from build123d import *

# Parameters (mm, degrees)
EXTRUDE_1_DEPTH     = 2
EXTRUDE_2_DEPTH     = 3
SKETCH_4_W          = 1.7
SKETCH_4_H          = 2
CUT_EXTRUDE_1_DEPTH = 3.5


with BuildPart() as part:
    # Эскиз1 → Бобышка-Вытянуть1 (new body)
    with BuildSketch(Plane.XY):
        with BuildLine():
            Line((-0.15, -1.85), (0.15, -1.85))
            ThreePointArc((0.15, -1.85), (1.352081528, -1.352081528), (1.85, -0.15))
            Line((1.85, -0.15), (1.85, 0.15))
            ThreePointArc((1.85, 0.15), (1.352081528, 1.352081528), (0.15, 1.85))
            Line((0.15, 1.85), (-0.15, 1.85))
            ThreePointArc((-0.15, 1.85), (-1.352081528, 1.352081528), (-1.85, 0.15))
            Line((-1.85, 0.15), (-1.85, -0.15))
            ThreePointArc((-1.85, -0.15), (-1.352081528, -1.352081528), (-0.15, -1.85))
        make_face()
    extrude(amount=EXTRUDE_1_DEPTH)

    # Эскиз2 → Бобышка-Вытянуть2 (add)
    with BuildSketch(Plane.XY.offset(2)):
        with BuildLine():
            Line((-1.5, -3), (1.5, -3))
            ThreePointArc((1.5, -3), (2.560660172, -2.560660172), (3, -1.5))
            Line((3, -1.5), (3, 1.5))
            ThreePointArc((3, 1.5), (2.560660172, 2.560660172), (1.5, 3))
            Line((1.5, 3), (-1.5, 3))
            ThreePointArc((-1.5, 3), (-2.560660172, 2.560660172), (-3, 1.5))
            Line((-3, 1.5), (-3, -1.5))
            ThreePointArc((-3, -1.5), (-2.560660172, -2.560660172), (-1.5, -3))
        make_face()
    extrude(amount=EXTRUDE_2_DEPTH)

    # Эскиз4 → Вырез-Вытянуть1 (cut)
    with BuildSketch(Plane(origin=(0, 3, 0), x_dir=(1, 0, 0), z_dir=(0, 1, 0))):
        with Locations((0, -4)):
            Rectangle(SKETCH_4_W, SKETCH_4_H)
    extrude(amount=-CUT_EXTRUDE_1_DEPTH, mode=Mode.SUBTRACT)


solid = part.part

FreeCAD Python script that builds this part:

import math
import FreeCAD as App
import Part
import Sketcher


def add_polygon(sketch, points):
    """Adds a closed chain of lines whose ends are joined by coincident constraints."""
    first, n = sketch.GeometryCount, len(points)
    for a, b in zip(points, points[1:] + points[:1]):
        sketch.addGeometry(Part.LineSegment(App.Vector(*a, 0), App.Vector(*b, 0)), False)
    for i in range(n):
        sketch.addConstraint(Sketcher.Constraint("Coincident", first + i, 2, first + (i + 1) % n, 1))

doc = App.newDocument("Part")
body = doc.addObject("PartDesign::Body", "Body")

# Sketch on XY plane
sketch1 = body.newObject("Sketcher::SketchObject", "Sketch")
sketch1.AttachmentSupport = (doc.getObject("XY_Plane"), [""])
sketch1.MapMode = "FlatFace"
sketch1.addGeometry([
    Part.LineSegment(App.Vector(-0.15, -1.85, 0), App.Vector(0.15, -1.85, 0)),  # 0
    Part.ArcOfCircle(Part.Circle(App.Vector(0.15, -0.15, 0), App.Vector(0, 0, 1), 1.7), math.radians(-90), math.radians(0)),  # 1
    Part.LineSegment(App.Vector(1.85, -0.15, 0), App.Vector(1.85, 0.15, 0)),  # 2
    Part.ArcOfCircle(Part.Circle(App.Vector(0.15, 0.15, 0), App.Vector(0, 0, 1), 1.7), math.radians(0), math.radians(90)),  # 3
    Part.LineSegment(App.Vector(0.15, 1.85, 0), App.Vector(-0.15, 1.85, 0)),  # 4
    Part.ArcOfCircle(Part.Circle(App.Vector(-0.15, 0.15, 0), App.Vector(0, 0, 1), 1.7), math.radians(90), math.radians(180)),  # 5
    Part.LineSegment(App.Vector(-1.85, 0.15, 0), App.Vector(-1.85, -0.15, 0)),  # 6
    Part.ArcOfCircle(Part.Circle(App.Vector(-0.15, -0.15, 0), App.Vector(0, 0, 1), 1.7), math.radians(180), math.radians(270)),  # 7
], False)
sketch1.addConstraint([
    Sketcher.Constraint("Tangent", 0, 2, 1, 1),
    Sketcher.Constraint("Tangent", 1, 2, 2, 1),
    Sketcher.Constraint("Tangent", 2, 2, 3, 1),
    Sketcher.Constraint("Tangent", 3, 2, 4, 1),
    Sketcher.Constraint("Tangent", 4, 2, 5, 1),
    Sketcher.Constraint("Tangent", 5, 2, 6, 1),
    Sketcher.Constraint("Tangent", 6, 2, 7, 1),
    Sketcher.Constraint("Tangent", 7, 2, 0, 1),
    Sketcher.Constraint("Horizontal", 0),
    Sketcher.Constraint("Vertical", 2),
    Sketcher.Constraint("Horizontal", 4),
    Sketcher.Constraint("Vertical", 6),
    Sketcher.Constraint("Equal", 1, 3),
    Sketcher.Constraint("Equal", 3, 5),
    Sketcher.Constraint("Equal", 5, 7),
    Sketcher.Constraint("Symmetric", 1, 3, 5, 3, -1, 1),
    Sketcher.Constraint("Equal", 4, 2),
    Sketcher.Constraint("Radius", 1, 1.7),
    Sketcher.Constraint("DistanceX", 0, 1, 0, 2, 0.3),
])
pad1 = body.newObject("PartDesign::Pad", "Pad")
pad1.Profile = sketch1
pad1.Length = 2

# Sketch on XY plane
sketch2 = body.newObject("Sketcher::SketchObject", "Sketch001")
sketch2.AttachmentSupport = (doc.getObject("XY_Plane"), [""])
sketch2.MapMode = "FlatFace"
sketch2.AttachmentOffset = App.Placement(App.Vector(0, 0, 2), App.Rotation())
sketch2.addGeometry([
    Part.LineSegment(App.Vector(-1.5, -3, 0), App.Vector(1.5, -3, 0)),  # 0
    Part.ArcOfCircle(Part.Circle(App.Vector(1.5, -1.5, 0), App.Vector(0, 0, 1), 1.5), math.radians(-90), math.radians(0)),  # 1
    Part.LineSegment(App.Vector(3, -1.5, 0), App.Vector(3, 1.5, 0)),  # 2
    Part.ArcOfCircle(Part.Circle(App.Vector(1.5, 1.5, 0), App.Vector(0, 0, 1), 1.5), math.radians(0), math.radians(90)),  # 3
    Part.LineSegment(App.Vector(1.5, 3, 0), App.Vector(-1.5, 3, 0)),  # 4
    Part.ArcOfCircle(Part.Circle(App.Vector(-1.5, 1.5, 0), App.Vector(0, 0, 1), 1.5), math.radians(90), math.radians(180)),  # 5
    Part.LineSegment(App.Vector(-3, 1.5, 0), App.Vector(-3, -1.5, 0)),  # 6
    Part.ArcOfCircle(Part.Circle(App.Vector(-1.5, -1.5, 0), App.Vector(0, 0, 1), 1.5), math.radians(180), math.radians(270)),  # 7
], False)
sketch2.addConstraint([
    Sketcher.Constraint("Tangent", 0, 2, 1, 1),
    Sketcher.Constraint("Tangent", 1, 2, 2, 1),
    Sketcher.Constraint("Tangent", 2, 2, 3, 1),
    Sketcher.Constraint("Tangent", 3, 2, 4, 1),
    Sketcher.Constraint("Tangent", 4, 2, 5, 1),
    Sketcher.Constraint("Tangent", 5, 2, 6, 1),
    Sketcher.Constraint("Tangent", 6, 2, 7, 1),
    Sketcher.Constraint("Tangent", 7, 2, 0, 1),
    Sketcher.Constraint("Horizontal", 0),
    Sketcher.Constraint("Vertical", 2),
    Sketcher.Constraint("Horizontal", 4),
    Sketcher.Constraint("Vertical", 6),
    Sketcher.Constraint("Equal", 1, 3),
    Sketcher.Constraint("Equal", 3, 5),
    Sketcher.Constraint("Equal", 5, 7),
    Sketcher.Constraint("Symmetric", 1, 3, 5, 3, -1, 1),
    Sketcher.Constraint("Equal", 4, 2),
    Sketcher.Constraint("Radius", 1, 1.5),
    Sketcher.Constraint("DistanceX", 0, 1, 0, 2, 3.0),
])
pad2 = body.newObject("PartDesign::Pad", "Pad001")
pad2.Profile = sketch2
pad2.Length = 3

# Sketch on XZ plane
sketch3 = body.newObject("Sketcher::SketchObject", "Sketch002")
sketch3.AttachmentSupport = (doc.getObject("XZ_Plane"), [""])
sketch3.MapMode = "FlatFace"
sketch3.AttachmentOffset = App.Placement(App.Vector(0, 0, -3), App.Rotation())
add_polygon(sketch3, [(-0.8, 3), (-0.8, 5), (0.8, 5), (0.8, 3)])  # lines 0-3
sketch3.addConstraint([
    Sketcher.Constraint("Vertical", 0),
    Sketcher.Constraint("Horizontal", 1),
    Sketcher.Constraint("Vertical", 2),
    Sketcher.Constraint("Horizontal", 3),
    Sketcher.Constraint("DistanceY", 0, 1, 0, 2, 2.0),
    Sketcher.Constraint("DistanceX", 1, 1, 1, 2, 1.7),
    Sketcher.Constraint("DistanceY", -1, 1, 0, 2, 5.0),
    Sketcher.Constraint("DistanceX", 0, 2, -1, 1, 0.85),
])
pocket1 = body.newObject("PartDesign::Pocket", "Pocket")
pocket1.Profile = sketch3
pocket1.Length = 3.5
pocket1.Reversed = True

doc.recompute()
